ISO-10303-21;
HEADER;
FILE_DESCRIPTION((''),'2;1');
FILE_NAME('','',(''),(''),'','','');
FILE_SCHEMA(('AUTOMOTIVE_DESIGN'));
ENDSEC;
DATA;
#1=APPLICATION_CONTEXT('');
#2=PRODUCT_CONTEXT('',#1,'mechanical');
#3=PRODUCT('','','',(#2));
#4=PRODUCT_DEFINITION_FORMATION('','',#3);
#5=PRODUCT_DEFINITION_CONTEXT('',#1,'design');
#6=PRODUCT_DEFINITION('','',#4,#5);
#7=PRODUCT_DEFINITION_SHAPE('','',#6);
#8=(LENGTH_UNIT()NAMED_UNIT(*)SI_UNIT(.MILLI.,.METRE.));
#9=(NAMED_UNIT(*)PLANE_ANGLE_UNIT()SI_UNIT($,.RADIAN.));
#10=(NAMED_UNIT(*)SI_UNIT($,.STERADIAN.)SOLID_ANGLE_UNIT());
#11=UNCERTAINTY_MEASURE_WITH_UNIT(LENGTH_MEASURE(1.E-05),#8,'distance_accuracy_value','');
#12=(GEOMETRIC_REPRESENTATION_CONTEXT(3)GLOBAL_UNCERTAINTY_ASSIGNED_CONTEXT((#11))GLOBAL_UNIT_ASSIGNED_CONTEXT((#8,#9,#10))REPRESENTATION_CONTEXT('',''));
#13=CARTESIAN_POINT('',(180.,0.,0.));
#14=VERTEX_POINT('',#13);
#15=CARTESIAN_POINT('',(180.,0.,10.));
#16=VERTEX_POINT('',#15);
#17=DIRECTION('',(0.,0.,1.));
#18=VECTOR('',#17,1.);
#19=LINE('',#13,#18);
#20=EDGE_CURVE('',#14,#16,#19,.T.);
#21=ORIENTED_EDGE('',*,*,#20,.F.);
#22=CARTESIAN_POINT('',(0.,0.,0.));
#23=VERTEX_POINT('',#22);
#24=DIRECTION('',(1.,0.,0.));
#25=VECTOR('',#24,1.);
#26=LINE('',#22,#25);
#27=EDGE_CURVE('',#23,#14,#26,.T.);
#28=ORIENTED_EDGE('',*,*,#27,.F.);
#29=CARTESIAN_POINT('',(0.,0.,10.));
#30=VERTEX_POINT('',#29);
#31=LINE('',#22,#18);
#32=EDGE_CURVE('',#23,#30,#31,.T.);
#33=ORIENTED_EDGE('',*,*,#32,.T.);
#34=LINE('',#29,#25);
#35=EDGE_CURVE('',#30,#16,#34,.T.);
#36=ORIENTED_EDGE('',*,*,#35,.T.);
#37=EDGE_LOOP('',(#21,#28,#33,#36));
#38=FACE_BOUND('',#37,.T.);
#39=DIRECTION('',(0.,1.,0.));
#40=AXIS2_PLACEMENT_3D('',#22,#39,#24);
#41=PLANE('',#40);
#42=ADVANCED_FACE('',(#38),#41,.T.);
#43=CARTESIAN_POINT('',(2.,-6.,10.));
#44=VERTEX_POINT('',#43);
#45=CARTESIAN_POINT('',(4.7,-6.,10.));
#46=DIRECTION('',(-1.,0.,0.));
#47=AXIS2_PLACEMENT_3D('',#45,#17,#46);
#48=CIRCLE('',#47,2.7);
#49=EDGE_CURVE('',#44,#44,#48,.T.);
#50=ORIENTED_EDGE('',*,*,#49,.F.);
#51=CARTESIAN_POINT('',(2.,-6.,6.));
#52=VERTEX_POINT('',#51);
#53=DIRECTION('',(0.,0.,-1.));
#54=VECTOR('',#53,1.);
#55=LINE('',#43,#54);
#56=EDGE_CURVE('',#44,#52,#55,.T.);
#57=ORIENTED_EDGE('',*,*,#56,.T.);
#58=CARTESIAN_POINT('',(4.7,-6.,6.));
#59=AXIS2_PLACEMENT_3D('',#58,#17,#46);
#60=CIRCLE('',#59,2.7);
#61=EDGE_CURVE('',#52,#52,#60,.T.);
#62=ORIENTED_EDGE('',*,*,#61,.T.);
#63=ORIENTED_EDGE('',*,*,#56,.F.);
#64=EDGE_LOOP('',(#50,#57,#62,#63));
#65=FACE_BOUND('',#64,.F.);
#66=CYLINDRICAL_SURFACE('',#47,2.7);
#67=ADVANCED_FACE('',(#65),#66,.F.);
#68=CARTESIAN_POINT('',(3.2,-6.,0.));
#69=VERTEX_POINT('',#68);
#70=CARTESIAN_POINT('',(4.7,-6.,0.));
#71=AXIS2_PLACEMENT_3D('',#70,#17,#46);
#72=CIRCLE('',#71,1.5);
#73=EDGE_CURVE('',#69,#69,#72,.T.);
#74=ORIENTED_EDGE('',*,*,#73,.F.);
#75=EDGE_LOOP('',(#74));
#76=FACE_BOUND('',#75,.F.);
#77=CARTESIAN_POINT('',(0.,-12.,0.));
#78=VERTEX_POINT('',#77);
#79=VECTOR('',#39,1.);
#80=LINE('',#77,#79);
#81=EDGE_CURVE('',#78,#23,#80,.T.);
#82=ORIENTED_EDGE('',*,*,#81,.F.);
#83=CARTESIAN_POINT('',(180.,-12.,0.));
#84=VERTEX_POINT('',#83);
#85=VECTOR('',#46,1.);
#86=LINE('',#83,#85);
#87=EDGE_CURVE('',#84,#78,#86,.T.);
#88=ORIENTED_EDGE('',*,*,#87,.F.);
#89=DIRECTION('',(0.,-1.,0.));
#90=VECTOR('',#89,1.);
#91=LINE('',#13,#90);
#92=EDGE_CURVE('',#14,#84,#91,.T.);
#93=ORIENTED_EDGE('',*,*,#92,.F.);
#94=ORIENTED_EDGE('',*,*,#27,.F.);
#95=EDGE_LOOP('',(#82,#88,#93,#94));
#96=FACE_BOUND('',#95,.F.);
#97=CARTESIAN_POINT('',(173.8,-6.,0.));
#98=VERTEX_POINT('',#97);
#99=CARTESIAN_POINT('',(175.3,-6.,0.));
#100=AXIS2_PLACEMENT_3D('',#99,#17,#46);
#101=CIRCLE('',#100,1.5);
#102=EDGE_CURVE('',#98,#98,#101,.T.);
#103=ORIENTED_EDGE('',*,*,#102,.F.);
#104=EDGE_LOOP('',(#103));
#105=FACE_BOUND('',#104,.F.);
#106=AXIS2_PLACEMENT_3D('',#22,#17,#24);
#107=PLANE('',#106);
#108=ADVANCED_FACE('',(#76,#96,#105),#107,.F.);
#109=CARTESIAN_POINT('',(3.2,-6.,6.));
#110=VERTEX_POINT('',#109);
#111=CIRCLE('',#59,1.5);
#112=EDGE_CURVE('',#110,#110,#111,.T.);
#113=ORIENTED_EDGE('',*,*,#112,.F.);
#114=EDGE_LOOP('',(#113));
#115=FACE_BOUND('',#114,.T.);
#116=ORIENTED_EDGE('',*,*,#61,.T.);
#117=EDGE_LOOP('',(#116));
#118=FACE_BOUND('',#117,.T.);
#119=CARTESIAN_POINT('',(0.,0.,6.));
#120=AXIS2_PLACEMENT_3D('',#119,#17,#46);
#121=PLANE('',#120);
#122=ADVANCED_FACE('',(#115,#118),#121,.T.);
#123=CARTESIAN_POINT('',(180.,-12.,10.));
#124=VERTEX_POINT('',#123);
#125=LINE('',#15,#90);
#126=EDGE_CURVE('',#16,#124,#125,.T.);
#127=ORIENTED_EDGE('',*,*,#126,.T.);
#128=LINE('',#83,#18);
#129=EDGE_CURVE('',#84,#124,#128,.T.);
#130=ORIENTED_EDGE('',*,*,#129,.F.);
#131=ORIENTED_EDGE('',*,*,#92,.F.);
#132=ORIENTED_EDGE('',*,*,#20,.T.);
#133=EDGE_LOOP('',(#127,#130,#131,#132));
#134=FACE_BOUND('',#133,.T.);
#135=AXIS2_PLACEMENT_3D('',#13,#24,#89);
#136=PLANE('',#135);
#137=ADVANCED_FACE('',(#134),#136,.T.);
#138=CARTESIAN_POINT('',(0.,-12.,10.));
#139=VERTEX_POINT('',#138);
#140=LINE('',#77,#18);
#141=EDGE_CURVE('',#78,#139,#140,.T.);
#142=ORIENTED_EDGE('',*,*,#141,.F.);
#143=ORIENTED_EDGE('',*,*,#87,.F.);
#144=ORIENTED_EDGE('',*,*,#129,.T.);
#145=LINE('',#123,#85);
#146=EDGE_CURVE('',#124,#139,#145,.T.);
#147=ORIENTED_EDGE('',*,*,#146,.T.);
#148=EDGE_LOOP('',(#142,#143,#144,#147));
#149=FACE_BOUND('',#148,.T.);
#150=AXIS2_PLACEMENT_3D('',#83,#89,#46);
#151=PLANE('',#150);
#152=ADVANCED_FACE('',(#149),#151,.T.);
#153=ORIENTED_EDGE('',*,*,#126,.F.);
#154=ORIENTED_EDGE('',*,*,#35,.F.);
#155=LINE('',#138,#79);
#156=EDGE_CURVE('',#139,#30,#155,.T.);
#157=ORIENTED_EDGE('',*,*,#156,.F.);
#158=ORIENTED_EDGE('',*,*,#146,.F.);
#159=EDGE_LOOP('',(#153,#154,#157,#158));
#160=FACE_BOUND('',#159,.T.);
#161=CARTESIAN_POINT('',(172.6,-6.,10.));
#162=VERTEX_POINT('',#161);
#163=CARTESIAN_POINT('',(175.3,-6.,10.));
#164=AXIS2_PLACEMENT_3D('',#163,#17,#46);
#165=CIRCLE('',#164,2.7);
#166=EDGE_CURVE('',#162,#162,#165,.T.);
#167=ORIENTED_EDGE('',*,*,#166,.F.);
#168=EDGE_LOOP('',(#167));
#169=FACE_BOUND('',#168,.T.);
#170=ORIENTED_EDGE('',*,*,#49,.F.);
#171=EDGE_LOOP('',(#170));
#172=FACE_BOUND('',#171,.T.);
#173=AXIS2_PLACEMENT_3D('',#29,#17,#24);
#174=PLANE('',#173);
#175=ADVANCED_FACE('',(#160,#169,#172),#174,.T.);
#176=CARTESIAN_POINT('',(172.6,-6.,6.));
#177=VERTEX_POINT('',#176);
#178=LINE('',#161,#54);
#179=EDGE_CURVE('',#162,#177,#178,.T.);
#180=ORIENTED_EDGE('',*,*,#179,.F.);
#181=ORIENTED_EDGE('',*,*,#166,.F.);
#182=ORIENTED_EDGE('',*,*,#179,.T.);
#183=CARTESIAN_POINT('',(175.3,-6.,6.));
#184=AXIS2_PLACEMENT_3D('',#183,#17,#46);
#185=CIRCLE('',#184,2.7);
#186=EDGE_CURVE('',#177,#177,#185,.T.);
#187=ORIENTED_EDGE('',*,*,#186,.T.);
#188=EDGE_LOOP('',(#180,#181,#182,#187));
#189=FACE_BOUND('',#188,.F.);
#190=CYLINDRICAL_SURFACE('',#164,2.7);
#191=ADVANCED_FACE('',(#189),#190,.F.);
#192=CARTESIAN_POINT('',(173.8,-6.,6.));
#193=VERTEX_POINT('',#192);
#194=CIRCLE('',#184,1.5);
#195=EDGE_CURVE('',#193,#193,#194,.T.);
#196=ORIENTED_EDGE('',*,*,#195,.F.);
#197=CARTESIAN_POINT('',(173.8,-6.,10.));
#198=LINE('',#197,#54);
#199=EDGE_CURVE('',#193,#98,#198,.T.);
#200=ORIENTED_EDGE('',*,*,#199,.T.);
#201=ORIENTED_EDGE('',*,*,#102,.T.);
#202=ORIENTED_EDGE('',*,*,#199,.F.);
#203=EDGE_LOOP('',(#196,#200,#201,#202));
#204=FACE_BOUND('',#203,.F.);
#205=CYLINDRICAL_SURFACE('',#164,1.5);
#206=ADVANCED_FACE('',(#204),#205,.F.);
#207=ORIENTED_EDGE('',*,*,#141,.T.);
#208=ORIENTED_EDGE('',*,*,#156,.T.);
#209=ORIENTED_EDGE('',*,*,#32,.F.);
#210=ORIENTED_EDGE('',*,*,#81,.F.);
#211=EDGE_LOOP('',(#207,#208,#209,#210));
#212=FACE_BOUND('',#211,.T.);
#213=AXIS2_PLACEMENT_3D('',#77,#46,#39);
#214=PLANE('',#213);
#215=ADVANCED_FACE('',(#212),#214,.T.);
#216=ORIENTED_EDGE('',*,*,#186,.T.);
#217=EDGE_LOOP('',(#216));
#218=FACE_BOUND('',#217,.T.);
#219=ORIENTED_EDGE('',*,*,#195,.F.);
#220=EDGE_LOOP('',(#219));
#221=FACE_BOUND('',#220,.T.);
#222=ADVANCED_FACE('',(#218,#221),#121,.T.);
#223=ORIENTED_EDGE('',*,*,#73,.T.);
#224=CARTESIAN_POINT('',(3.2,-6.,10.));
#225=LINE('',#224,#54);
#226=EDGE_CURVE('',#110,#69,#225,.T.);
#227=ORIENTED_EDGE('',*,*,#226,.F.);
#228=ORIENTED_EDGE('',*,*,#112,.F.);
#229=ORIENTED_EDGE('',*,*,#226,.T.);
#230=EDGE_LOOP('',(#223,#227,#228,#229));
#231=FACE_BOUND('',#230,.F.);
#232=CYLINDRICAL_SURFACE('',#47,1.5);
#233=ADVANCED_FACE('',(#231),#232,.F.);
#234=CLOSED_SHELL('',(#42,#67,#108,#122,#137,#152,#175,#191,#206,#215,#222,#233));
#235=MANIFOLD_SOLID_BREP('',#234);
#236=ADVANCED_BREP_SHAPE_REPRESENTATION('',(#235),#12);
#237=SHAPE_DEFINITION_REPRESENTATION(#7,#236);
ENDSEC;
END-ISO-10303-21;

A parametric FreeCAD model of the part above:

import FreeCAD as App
import Part
import Sketcher
Q = App.Units.Quantity

doc = App.newDocument("Part")
body = doc.addObject("PartDesign::Body", "Body")

sketch1 = doc.addObject("Sketcher::SketchObject", "Sketch")
body.addObject(sketch1)
sketch1.AttachmentSupport = (doc.XY_Plane, [""])
sketch1.MapMode = "FlatFace"
sketch1.addGeometry([
    Part.LineSegment(App.Vector(180, 0, 0), App.Vector(0, 0, 0)),
    Part.LineSegment(App.Vector(0, 0, 0), App.Vector(0, -12, 0)),
    Part.LineSegment(App.Vector(0, -12, 0), App.Vector(180, -12, 0)),
    Part.LineSegment(App.Vector(180, -12, 0), App.Vector(180, 0, 0)),
], False)
sketch1.addConstraint([
    Sketcher.Constraint("Coincident", 0, 2, 1, 1),
    Sketcher.Constraint("Coincident", 1, 2, 2, 1),
    Sketcher.Constraint("Coincident", 2, 2, 3, 1),
    Sketcher.Constraint("Coincident", 3, 2, 0, 1),
    Sketcher.Constraint("Horizontal", 0),
    Sketcher.Constraint("Vertical", 1),
    Sketcher.Constraint("Horizontal", 2),
    Sketcher.Constraint("Vertical", 3),
    Sketcher.Constraint("Coincident", 0, 2, -1, 1),
    Sketcher.Constraint("DistanceX", 0, 2, 0, 1, Q("180 mm")),
    Sketcher.Constraint("DistanceY", 1, 2, 1, 1, Q("12 mm")),
])
pad1 = doc.addObject("PartDesign::Pad", "Pad")
body.addObject(pad1)
pad1.Profile = sketch1
pad1.Length = 10

sketch2 = doc.addObject("Sketcher::SketchObject", "Sketch001")
body.addObject(sketch2)
sketch2.AttachmentSupport = (doc.XY_Plane, [""])
sketch2.MapMode = "FlatFace"
sketch2.AttachmentOffset = App.Placement(App.Vector(0, 0, 10), App.Rotation())
sketch2.addGeometry(Part.Circle(App.Vector(175.3, -6, 0), App.Vector(0, 0, 1), 1.5), False)
sketch2.addConstraint([
    Sketcher.Constraint("Diameter", 0, Q("3 mm")),
    Sketcher.Constraint("DistanceY", 0, 3, -1, 1, Q("6 mm")),
    Sketcher.Constraint("DistanceX", -1, 1, 0, 3, Q("175.3 mm")),
])
pocket1 = doc.addObject("PartDesign::Pocket", "Pocket")
body.addObject(pocket1)
pocket1.Profile = sketch2
pocket1.Length = 100

sketch3 = doc.addObject("Sketcher::SketchObject", "Sketch002")
body.addObject(sketch3)
sketch3.AttachmentSupport = (doc.XY_Plane, [""])
sketch3.MapMode = "FlatFace"
sketch3.AttachmentOffset = App.Placement(App.Vector(0, 0, 10), App.Rotation())
sketch3.addGeometry([
    Part.Circle(App.Vector(175.3, -6, 0), App.Vector(0, 0, 1), 2.7),
    Part.Circle(App.Vector(175.3, -6, 0), App.Vector(0, 0, 1), 1.5),
], False)
sketch3.addConstraint([
    Sketcher.Constraint("Coincident", 1, 3, 0, 3),
    Sketcher.Constraint("Diameter", 1, Q("3 mm")),
    Sketcher.Constraint("DistanceY", 0, 3, -1, 1, Q("6 mm")),
    Sketcher.Constraint("Diameter", 0, Q("5.4 mm")),
    Sketcher.Constraint("DistanceX", -1, 1, 0, 3, Q("175.3 mm")),
])
pocket2 = doc.addObject("PartDesign::Pocket", "Pocket001")
body.addObject(pocket2)
pocket2.Profile = sketch3
pocket2.Length = 4

sketch4 = doc.addObject("Sketcher::SketchObject", "Sketch003")
body.addObject(sketch4)
sketch4.AttachmentSupport = (doc.XY_Plane, [""])
sketch4.MapMode = "FlatFace"
sketch4.AttachmentOffset = App.Placement(App.Vector(0, 0, 10), App.Rotation())
sketch4.addGeometry(Part.Circle(App.Vector(4.7, -6, 0), App.Vector(0, 0, 1), 1.5), False)
sketch4.addConstraint([
    Sketcher.Constraint("Diameter", 0, Q("3 mm")),
    Sketcher.Constraint("DistanceY", 0, 3, -1, 1, Q("6 mm")),
    Sketcher.Constraint("DistanceX", -1, 1, 0, 3, Q("4.7 mm")),
])
pocket3 = doc.addObject("PartDesign::Pocket", "Pocket002")
body.addObject(pocket3)
pocket3.Profile = sketch4
pocket3.Length = 100

sketch5 = doc.addObject("Sketcher::SketchObject", "Sketch004")
body.addObject(sketch5)
sketch5.AttachmentSupport = (doc.XY_Plane, [""])
sketch5.MapMode = "FlatFace"
sketch5.AttachmentOffset = App.Placement(App.Vector(0, 0, 10), App.Rotation())
sketch5.addGeometry([
    Part.Circle(App.Vector(4.7, -6, 0), App.Vector(0, 0, 1), 2.7),
    Part.Circle(App.Vector(4.7, -6, 0), App.Vector(0, 0, 1), 1.5),
], False)
sketch5.addConstraint([
    Sketcher.Constraint("Coincident", 1, 3, 0, 3),
    Sketcher.Constraint("Diameter", 1, Q("3 mm")),
    Sketcher.Constraint("DistanceY", 0, 3, -1, 1, Q("6 mm")),
    Sketcher.Constraint("Diameter", 0, Q("5.4 mm")),
    Sketcher.Constraint("DistanceX", -1, 1, 0, 3, Q("4.7 mm")),
])
pocket4 = doc.addObject("PartDesign::Pocket", "Pocket003")
body.addObject(pocket4)
pocket4.Profile = sketch5
pocket4.Length = 4

doc.recompute()
